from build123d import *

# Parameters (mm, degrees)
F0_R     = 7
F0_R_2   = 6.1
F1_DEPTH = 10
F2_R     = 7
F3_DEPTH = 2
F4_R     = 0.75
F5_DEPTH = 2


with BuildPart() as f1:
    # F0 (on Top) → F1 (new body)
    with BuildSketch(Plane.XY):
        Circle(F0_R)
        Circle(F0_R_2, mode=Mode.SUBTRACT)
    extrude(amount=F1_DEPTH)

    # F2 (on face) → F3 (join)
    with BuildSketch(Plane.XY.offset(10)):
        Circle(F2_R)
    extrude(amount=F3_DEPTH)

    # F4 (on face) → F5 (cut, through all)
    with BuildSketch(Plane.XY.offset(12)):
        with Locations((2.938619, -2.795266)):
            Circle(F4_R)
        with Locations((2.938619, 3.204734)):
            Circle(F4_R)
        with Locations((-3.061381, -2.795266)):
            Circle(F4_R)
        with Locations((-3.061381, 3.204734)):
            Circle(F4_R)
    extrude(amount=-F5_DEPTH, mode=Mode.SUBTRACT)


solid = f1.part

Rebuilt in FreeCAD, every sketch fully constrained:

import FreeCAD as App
import Part
import Sketcher
from FreeCAD import Vector

doc = App.newDocument("Part")
body = doc.addObject("PartDesign::Body", "Body")

# Sketch on XY plane
sketch1 = body.newObject("Sketcher::SketchObject", "Sketch")
sketch1.AttachmentSupport = (doc.getObject("XY_Plane"), [""])
sketch1.MapMode = "FlatFace"
sketch1.addGeometry([
    Part.Circle(Vector(0, 0, 0), Vector(0, 0, 1), 7),
    Part.Circle(Vector(0, 0, 0), Vector(0, 0, 1), 6),
], False)
sketch1.addConstraint([
    Sketcher.Constraint("Coincident", 0, 3, -1, 1),
    Sketcher.Constraint("Coincident", 1, 3, -1, 1),
    Sketcher.Constraint("Diameter", 0, 14.0),
    Sketcher.Constraint("Diameter", 1, 12.2),
])
pad1 = body.newObject("PartDesign::Pad", "Pad")
pad1.Profile = sketch1
pad1.Length = 10

# Sketch on XY plane
sketch2 = body.newObject("Sketcher::SketchObject", "Sketch001")
sketch2.AttachmentSupport = (doc.getObject("XY_Plane"), [""])
sketch2.MapMode = "FlatFace"
sketch2.AttachmentOffset = App.Placement(Vector(0, 0, 10), App.Rotation())
sketch2.addGeometry(Part.Circle(Vector(0, 0, 0), Vector(0, 0, 1), 7), False)
sketch2.addConstraint([
    Sketcher.Constraint("Coincident", 0, 3, -1, 1),
    Sketcher.Constraint("Diameter", 0, 14.0),
])
pad2 = body.newObject("PartDesign::Pad", "Pad001")
pad2.Profile = sketch2
pad2.Length = 2

# Sketch on XY plane
sketch3 = body.newObject("Sketcher::SketchObject", "Sketch002")
sketch3.AttachmentSupport = (doc.getObject("XY_Plane"), [""])
sketch3.MapMode = "FlatFace"
sketch3.AttachmentOffset = App.Placement(Vector(0, 0, 12), App.Rotation())
sketch3.addGeometry([
    Part.Circle(Vector(2.9, -2.8, 0), Vector(0, 0, 1), 0.8),
    Part.Circle(Vector(2.9, 3.2, 0), Vector(0, 0, 1), 0.8),
    Part.Circle(Vector(-3.1, -2.8, 0), Vector(0, 0, 1), 0.8),
    Part.Circle(Vector(-3.1, 3.2, 0), Vector(0, 0, 1), 0.8),
], False)
sketch3.addConstraint([
    Sketcher.Constraint("Equal", 0, 1),
    Sketcher.Constraint("Equal", 1, 2),
    Sketcher.Constraint("Equal", 2, 3),
    Sketcher.Constraint("Horizontal", 0, 3, 2, 3),
    Sketcher.Constraint("Horizontal", 1, 3, 3, 3),
    Sketcher.Constraint("Vertical", 0, 3, 1, 3),
    Sketcher.Constraint("Vertical", 2, 3, 3, 3),
    Sketcher.Constraint("Diameter", 0, 1.5),
    Sketcher.Constraint("DistanceY", 0, 3, 1, 3, 6.0),
    Sketcher.Constraint("DistanceX", 2, 3, 0, 3, 6.0),
    Sketcher.Constraint("DistanceX", -1, 1, 0, 3, 2.938619),
    Sketcher.Constraint("DistanceY", 0, 3, -1, 1, 2.795266),
])
pocket1 = body.newObject("PartDesign::Pocket", "Pocket")
pocket1.Profile = sketch3
pocket1.Type = "ThroughAll"

doc.recompute()
